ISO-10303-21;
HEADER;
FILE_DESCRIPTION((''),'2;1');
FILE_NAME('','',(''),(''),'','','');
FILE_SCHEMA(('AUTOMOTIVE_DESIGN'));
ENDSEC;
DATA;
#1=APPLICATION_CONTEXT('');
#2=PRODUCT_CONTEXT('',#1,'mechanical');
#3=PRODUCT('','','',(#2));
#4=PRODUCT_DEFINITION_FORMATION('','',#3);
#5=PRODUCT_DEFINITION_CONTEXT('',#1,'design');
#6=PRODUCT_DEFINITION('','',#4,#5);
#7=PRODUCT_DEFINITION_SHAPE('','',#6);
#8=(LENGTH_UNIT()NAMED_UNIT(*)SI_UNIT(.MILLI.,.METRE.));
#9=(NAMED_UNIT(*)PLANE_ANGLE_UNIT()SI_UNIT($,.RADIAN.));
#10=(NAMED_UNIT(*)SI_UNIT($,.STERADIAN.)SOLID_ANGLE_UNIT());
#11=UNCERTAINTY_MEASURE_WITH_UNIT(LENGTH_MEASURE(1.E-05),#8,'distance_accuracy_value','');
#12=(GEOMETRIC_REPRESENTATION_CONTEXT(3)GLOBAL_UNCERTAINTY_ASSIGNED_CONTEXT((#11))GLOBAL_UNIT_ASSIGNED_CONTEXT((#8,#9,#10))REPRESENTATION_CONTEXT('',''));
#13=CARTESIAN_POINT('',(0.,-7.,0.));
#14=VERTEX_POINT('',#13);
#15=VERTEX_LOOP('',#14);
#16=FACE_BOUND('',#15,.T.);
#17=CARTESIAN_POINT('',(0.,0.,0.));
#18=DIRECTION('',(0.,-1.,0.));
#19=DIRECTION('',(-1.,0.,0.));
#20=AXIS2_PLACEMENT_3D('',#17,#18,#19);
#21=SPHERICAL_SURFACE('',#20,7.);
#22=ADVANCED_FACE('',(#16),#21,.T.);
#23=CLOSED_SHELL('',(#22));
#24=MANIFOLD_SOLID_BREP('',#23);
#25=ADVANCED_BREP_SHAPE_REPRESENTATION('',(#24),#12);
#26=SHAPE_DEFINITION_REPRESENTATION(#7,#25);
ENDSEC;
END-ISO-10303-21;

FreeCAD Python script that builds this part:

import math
import FreeCAD as App
import Part
import Sketcher

V = App.Vector

doc = App.newDocument("Part")
params = doc.addObject("Spreadsheet::Sheet", "Params")
for row, (alias, value) in enumerate([
    ("sketch1_radius", "7 mm"),
    ("revolution_angle", "360 deg"),
], start=1):
    params.set(f"A{row}", alias)
    params.set(f"B{row}", "=" + value)
    params.setAlias(f"B{row}", alias)

body = doc.addObject("PartDesign::Body", "Body")

# Sketch on XY plane
sketch1 = body.newObject("Sketcher::SketchObject", "Sketch")
sketch1.AttachmentSupport = (doc.getObject("XY_Plane"), [""])
sketch1.MapMode = "FlatFace"
sketch1.addGeometry([
    Part.LineSegment(V(0, -7, 0), V(0, 7, 0)),
    Part.ArcOfCircle(Part.Circle(V(0, 0, 0), V(0, 0, 1), 7), math.radians(90), math.radians(270)),
], False)
sketch1.addConstraint([
    Sketcher.Constraint("Coincident", 0, 1, 1, 2),
    Sketcher.Constraint("Coincident", 1, 1, 0, 2),
    Sketcher.Constraint("Vertical", 0),
    Sketcher.Constraint("Coincident", 1, 3, -1, 1),
    Sketcher.Constraint("PointOnObject", 0, 1, -2),
    Sketcher.Constraint("Radius", 1, 7.0),
])
sketch1.setExpression("Constraints[5]", "Params.sketch1_radius")
revolution = body.newObject("PartDesign::Revolution", "Revolution")
revolution.Profile = sketch1
revolution.ReferenceAxis = (sketch1, ["V_Axis"])
revolution.setExpression("Angle", "Params.revolution_angle")

doc.recompute()
